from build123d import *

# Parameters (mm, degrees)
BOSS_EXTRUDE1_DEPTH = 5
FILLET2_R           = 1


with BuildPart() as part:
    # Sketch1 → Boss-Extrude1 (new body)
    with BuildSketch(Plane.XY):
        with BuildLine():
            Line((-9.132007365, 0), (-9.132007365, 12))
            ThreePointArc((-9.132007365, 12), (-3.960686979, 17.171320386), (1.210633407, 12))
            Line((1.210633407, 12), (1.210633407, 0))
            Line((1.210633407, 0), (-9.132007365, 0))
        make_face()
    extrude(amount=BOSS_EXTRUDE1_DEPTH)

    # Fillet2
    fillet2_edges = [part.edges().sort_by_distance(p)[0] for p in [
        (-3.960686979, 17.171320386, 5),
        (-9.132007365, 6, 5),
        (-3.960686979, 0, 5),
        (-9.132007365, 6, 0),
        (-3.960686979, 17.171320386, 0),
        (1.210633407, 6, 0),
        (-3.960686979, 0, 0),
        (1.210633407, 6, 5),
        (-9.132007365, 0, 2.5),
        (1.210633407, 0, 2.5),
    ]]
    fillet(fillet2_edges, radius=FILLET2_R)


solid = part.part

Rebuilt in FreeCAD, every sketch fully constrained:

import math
import FreeCAD as App
import Part
import Sketcher
from FreeCAD import Vector

doc = App.newDocument("Part")
body = doc.addObject("PartDesign::Body", "Body")

# Sketch on XY plane
sketch1 = body.newObject("Sketcher::SketchObject", "Sketch")
sketch1.AttachmentSupport = (doc.getObject("XY_Plane"), [""])
sketch1.MapMode = "FlatFace"
sketch1.addGeometry([
    Part.LineSegment(Vector(-9, 12, 0), Vector(-9, 0, 0)),
    Part.LineSegment(Vector(-9, 0, 0), Vector(1, 0, 0)),
    Part.LineSegment(Vector(1, 0, 0), Vector(1, 12, 0)),
    Part.ArcOfCircle(Part.Circle(Vector(-4, 12, 0), Vector(0, 0, 1), 5), math.radians(0), math.radians(180)),
], False)
sketch1.addConstraint([
    Sketcher.Constraint("Coincident", 0, 2, 1, 1),
    Sketcher.Constraint("Coincident", 1, 2, 2, 1),
    Sketcher.Constraint("Tangent", 2, 2, 3, 1),
    Sketcher.Constraint("Tangent", 3, 2, 0, 1),
    Sketcher.Constraint("Vertical", 0),
    Sketcher.Constraint("Horizontal", 1),
    Sketcher.Constraint("Vertical", 2),
    Sketcher.Constraint("PointOnObject", 0, 2, -1),
    Sketcher.Constraint("DistanceY", 0, 2, 0, 1, 12.0),
    Sketcher.Constraint("Radius", 3, 5.17132),
    Sketcher.Constraint("DistanceX", 3, 3, -1, 1, 3.960687),
])
pad1 = body.newObject("PartDesign::Pad", "Pad")
pad1.Profile = sketch1
pad1.Length = 5
doc.recompute()

fillet = body.newObject("PartDesign::Fillet", "Fillet")
fillet.Base = (pad1, ["Edge1"])
fillet.UseAllEdges = True
fillet.Radius = 1

doc.recompute()
